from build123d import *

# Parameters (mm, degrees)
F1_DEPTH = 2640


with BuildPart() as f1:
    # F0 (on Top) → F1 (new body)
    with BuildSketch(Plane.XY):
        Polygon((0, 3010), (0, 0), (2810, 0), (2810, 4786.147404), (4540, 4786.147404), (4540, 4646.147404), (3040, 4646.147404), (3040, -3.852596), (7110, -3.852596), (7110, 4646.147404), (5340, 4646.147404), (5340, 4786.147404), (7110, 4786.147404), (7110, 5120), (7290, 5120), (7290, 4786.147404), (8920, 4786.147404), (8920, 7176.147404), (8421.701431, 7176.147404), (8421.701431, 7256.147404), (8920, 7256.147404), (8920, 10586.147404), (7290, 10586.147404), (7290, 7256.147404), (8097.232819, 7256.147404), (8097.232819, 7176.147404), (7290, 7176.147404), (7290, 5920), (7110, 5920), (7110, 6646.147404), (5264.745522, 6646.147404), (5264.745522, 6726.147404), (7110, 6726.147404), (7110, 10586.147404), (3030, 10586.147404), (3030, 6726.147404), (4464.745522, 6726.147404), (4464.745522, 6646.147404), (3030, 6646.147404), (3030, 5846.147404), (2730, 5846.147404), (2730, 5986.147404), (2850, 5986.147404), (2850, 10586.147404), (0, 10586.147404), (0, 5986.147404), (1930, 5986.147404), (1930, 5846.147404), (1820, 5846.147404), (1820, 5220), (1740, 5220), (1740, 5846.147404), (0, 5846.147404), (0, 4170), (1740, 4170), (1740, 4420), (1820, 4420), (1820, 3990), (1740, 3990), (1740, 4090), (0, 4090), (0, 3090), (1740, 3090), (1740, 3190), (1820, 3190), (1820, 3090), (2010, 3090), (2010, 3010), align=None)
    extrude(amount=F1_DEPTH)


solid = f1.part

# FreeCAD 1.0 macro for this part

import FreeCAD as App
import Part
import Sketcher

V = App.Vector


def add_polygon(sketch, points):
    """Adds a closed chain of lines whose ends are joined by coincident constraints."""
    first, n = sketch.GeometryCount, len(points)
    for a, b in zip(points, points[1:] + points[:1]):
        sketch.addGeometry(Part.LineSegment(App.Vector(*a, 0), App.Vector(*b, 0)), False)
    for i in range(n):
        sketch.addConstraint(Sketcher.Constraint("Coincident", first + i, 2, first + (i + 1) % n, 1))

doc = App.newDocument("Part")
body = doc.addObject("PartDesign::Body", "Body")

sketch1 = body.newObject("Sketcher::SketchObject", "Sketch")
sketch1.AttachmentSupport = (doc.getObject("XY_Plane"), [""])
sketch1.MapMode = "FlatFace"
add_polygon(sketch1, [(0, 3010), (0, 0), (2810, 0), (2810, 4786), (4540, 4786), (4540, 4646), (3040, 4646), (3040, -4), (7110, -4), (7110, 4646), (5340, 4646), (5340, 4786), (7110, 4786), (7110, 5120), (7290, 5120), (7290, 4786), (8920, 4786), (8920, 7176), (8422, 7176), (8422, 7256), (8920, 7256), (8920, 10586), (7290, 10586), (7290, 7256), (8097, 7256), (8097, 7176), (7290, 7176), (7290, 5920), (7110, 5920), (7110, 6646), (5265, 6646), (5265, 6726), (7110, 6726), (7110, 10586), (3030, 10586), (3030, 6726), (4465, 6726), (4465, 6646), (3030, 6646), (3030, 5846), (2730, 5846), (2730, 5986), (2850, 5986), (2850, 10586), (0, 10586), (0, 5986), (1930, 5986), (1930, 5846), (1820, 5846), (1820, 5220), (1740, 5220), (1740, 5846), (0, 5846), (0, 4170), (1740, 4170), (1740, 4420), (1820, 4420), (1820, 3990), (1740, 3990), (1740, 4090), (0, 4090), (0, 3090), (1740, 3090), (1740, 3190), (1820, 3190), (1820, 3090), (2010, 3090), (2010, 3010)])
sketch1.addConstraint(Sketcher.Constraint("Vertical", 0))
sketch1.addConstraint(Sketcher.Constraint("Horizontal", 1))
sketch1.addConstraint(Sketcher.Constraint("Vertical", 2))
sketch1.addConstraint(Sketcher.Constraint("Horizontal", 3))
sketch1.addConstraint(Sketcher.Constraint("Vertical", 4))
sketch1.addConstraint(Sketcher.Constraint("Horizontal", 5))
sketch1.addConstraint(Sketcher.Constraint("Vertical", 6))
sketch1.addConstraint(Sketcher.Constraint("Horizontal", 7))
sketch1.addConstraint(Sketcher.Constraint("Vertical", 8))
sketch1.addConstraint(Sketcher.Constraint("Horizontal", 9))
sketch1.addConstraint(Sketcher.Constraint("Vertical", 10))
sketch1.addConstraint(Sketcher.Constraint("Horizontal", 11))
sketch1.addConstraint(Sketcher.Constraint("Vertical", 12))
sketch1.addConstraint(Sketcher.Constraint("Horizontal", 13))
sketch1.addConstraint(Sketcher.Constraint("Vertical", 14))
sketch1.addConstraint(Sketcher.Constraint("Horizontal", 15))
sketch1.addConstraint(Sketcher.Constraint("Vertical", 16))
sketch1.addConstraint(Sketcher.Constraint("Horizontal", 17))
sketch1.addConstraint(Sketcher.Constraint("Vertical", 18))
sketch1.addConstraint(Sketcher.Constraint("Horizontal", 19))
sketch1.addConstraint(Sketcher.Constraint("Vertical", 20))
sketch1.addConstraint(Sketcher.Constraint("Horizontal", 21))
sketch1.addConstraint(Sketcher.Constraint("Vertical", 22))
sketch1.addConstraint(Sketcher.Constraint("Horizontal", 23))
sketch1.addConstraint(Sketcher.Constraint("Vertical", 24))
sketch1.addConstraint(Sketcher.Constraint("Horizontal", 25))
sketch1.addConstraint(Sketcher.Constraint("Vertical", 26))
sketch1.addConstraint(Sketcher.Constraint("Horizontal", 27))
sketch1.addConstraint(Sketcher.Constraint("Vertical", 28))
sketch1.addConstraint(Sketcher.Constraint("Horizontal", 29))
sketch1.addConstraint(Sketcher.Constraint("Vertical", 30))
sketch1.addConstraint(Sketcher.Constraint("Horizontal", 31))
sketch1.addConstraint(Sketcher.Constraint("Vertical", 32))
sketch1.addConstraint(Sketcher.Constraint("Horizontal", 33))
sketch1.addConstraint(Sketcher.Constraint("Vertical", 34))
sketch1.addConstraint(Sketcher.Constraint("Horizontal", 35))
sketch1.addConstraint(Sketcher.Constraint("Vertical", 36))
sketch1.addConstraint(Sketcher.Constraint("Horizontal", 37))
sketch1.addConstraint(Sketcher.Constraint("Vertical", 38))
sketch1.addConstraint(Sketcher.Constraint("Horizontal", 39))
sketch1.addConstraint(Sketcher.Constraint("Vertical", 40))
sketch1.addConstraint(Sketcher.Constraint("Horizontal", 41))
sketch1.addConstraint(Sketcher.Constraint("Vertical", 42))
sketch1.addConstraint(Sketcher.Constraint("Horizontal", 43))
sketch1.addConstraint(Sketcher.Constraint("Vertical", 44))
sketch1.addConstraint(Sketcher.Constraint("Horizontal", 45))
sketch1.addConstraint(Sketcher.Constraint("Vertical", 46))
sketch1.addConstraint(Sketcher.Constraint("Horizontal", 47))
sketch1.addConstraint(Sketcher.Constraint("Vertical", 48))
sketch1.addConstraint(Sketcher.Constraint("Horizontal", 49))
sketch1.addConstraint(Sketcher.Constraint("Vertical", 50))
sketch1.addConstraint(Sketcher.Constraint("Horizontal", 51))
sketch1.addConstraint(Sketcher.Constraint("Vertical", 52))
sketch1.addConstraint(Sketcher.Constraint("Horizontal", 53))
sketch1.addConstraint(Sketcher.Constraint("Vertical", 54))
sketch1.addConstraint(Sketcher.Constraint("Horizontal", 55))
sketch1.addConstraint(Sketcher.Constraint("Vertical", 56))
sketch1.addConstraint(Sketcher.Constraint("Horizontal", 57))
sketch1.addConstraint(Sketcher.Constraint("Vertical", 58))
sketch1.addConstraint(Sketcher.Constraint("Horizontal", 59))
sketch1.addConstraint(Sketcher.Constraint("Vertical", 60))
sketch1.addConstraint(Sketcher.Constraint("Horizontal", 61))
sketch1.addConstraint(Sketcher.Constraint("Vertical", 62))
sketch1.addConstraint(Sketcher.Constraint("Horizontal", 63))
sketch1.addConstraint(Sketcher.Constraint("Vertical", 64))
sketch1.addConstraint(Sketcher.Constraint("Horizontal", 65))
sketch1.addConstraint(Sketcher.Constraint("Vertical", 66))
sketch1.addConstraint(Sketcher.Constraint("Horizontal", 67))
sketch1.addConstraint(Sketcher.Constraint("Coincident", 0, 2, -1, 1))
sketch1.addConstraint(Sketcher.Constraint("PointOnObject", 43, 2, -2))
sketch1.addConstraint(Sketcher.Constraint("PointOnObject", 51, 2, -2))
sketch1.addConstraint(Sketcher.Constraint("PointOnObject", 59, 2, -2))
sketch1.addConstraint(Sketcher.Constraint("Horizontal", 5, 2, 8, 2))
sketch1.addConstraint(Sketcher.Constraint("Horizontal", 3, 2, 10, 2))
sketch1.addConstraint(Sketcher.Constraint("Horizontal", 11, 2, 14, 2))
sketch1.addConstraint(Sketcher.Constraint("Horizontal", 19, 2, 22, 2))
sketch1.addConstraint(Sketcher.Constraint("Horizontal", 17, 2, 24, 2))
sketch1.addConstraint(Sketcher.Constraint("Horizontal", 21, 2, 32, 2))
sketch1.addConstraint(Sketcher.Constraint("Horizontal", 31, 2, 34, 2))
sketch1.addConstraint(Sketcher.Constraint("Horizontal", 29, 2, 36, 2))
sketch1.addConstraint(Sketcher.Constraint("Horizontal", 33, 2, 42, 2))
sketch1.addConstraint(Sketcher.Constraint("Horizontal", 41, 2, 44, 2))
sketch1.addConstraint(Sketcher.Constraint("Horizontal", 39, 2, 46, 2))
sketch1.addConstraint(Sketcher.Constraint("Horizontal", 47, 2, 50, 2))
sketch1.addConstraint(Sketcher.Constraint("Horizontal", 61, 2, 64, 2))
sketch1.addConstraint(Sketcher.Constraint("Vertical", 8, 2, 11, 2))
sketch1.addConstraint(Sketcher.Constraint("Vertical", 16, 2, 19, 2))
sketch1.addConstraint(Sketcher.Constraint("Vertical", 14, 2, 21, 2))
sketch1.addConstraint(Sketcher.Constraint("Vertical", 22, 2, 25, 2))
sketch1.addConstraint(Sketcher.Constraint("Vertical", 12, 2, 27, 2))
sketch1.addConstraint(Sketcher.Constraint("Vertical", 28, 2, 31, 2))
sketch1.addConstraint(Sketcher.Constraint("Vertical", 34, 2, 37, 2))
sketch1.addConstraint(Sketcher.Constraint("Vertical", 50, 2, 53, 2))
sketch1.addConstraint(Sketcher.Constraint("Vertical", 48, 2, 55, 2))
sketch1.addConstraint(Sketcher.Constraint("Vertical", 54, 2, 57, 2))
sketch1.addConstraint(Sketcher.Constraint("Vertical", 58, 2, 61, 2))
sketch1.addConstraint(Sketcher.Constraint("Vertical", 56, 2, 63, 2))
sketch1.addConstraint(Sketcher.Constraint("Equal", 63, 18))
sketch1.addConstraint(Sketcher.Constraint("Equal", 24, 30))
sketch1.addConstraint(Sketcher.Constraint("Equal", 10, 40))
sketch1.addConstraint(Sketcher.Constraint("Equal", 58, 62))
sketch1.addConstraint(Sketcher.Constraint("Equal", 36, 66))
sketch1.addConstraint(Sketcher.Constraint("DistanceX", 1, 1, 1, 2, 2810.0))
sketch1.addConstraint(Sketcher.Constraint("DistanceX", 3, 1, 3, 2, 1730.0))
sketch1.addConstraint(Sketcher.Constraint("DistanceX", 5, 2, 5, 1, 1500.0))
sketch1.addConstraint(Sketcher.Constraint("DistanceX", 7, 1, 7, 2, 4070.0))
sketch1.addConstraint(Sketcher.Constraint("DistanceX", 9, 2, 9, 1, 1770.0))
sketch1.addConstraint(Sketcher.Constraint("DistanceX", 13, 1, 13, 2, 180.0))
sketch1.addConstraint(Sketcher.Constraint("DistanceX", 15, 1, 15, 2, 1630.0))
sketch1.addConstraint(Sketcher.Constraint("DistanceX", 33, 2, 33, 1, 4080.0))
sketch1.addConstraint(Sketcher.Constraint("DistanceX", 39, 2, 39, 1, 300.0))
sketch1.addConstraint(Sketcher.Constraint("DistanceX", 41, 1, 41, 2, 120.0))
sketch1.addConstraint(Sketcher.Constraint("DistanceX", 45, 1, 45, 2, 1930.0))
sketch1.addConstraint(Sketcher.Constraint("DistanceX", 47, 2, 47, 1, 110.0))
sketch1.addConstraint(Sketcher.Constraint("DistanceX", 49, 2, 49, 1, 80.0))
sketch1.addConstraint(Sketcher.Constraint("DistanceX", 65, 1, 65, 2, 190.0))
sketch1.addConstraint(Sketcher.Constraint("DistanceY", 0, 2, 0, 1, 3010.0))
sketch1.addConstraint(Sketcher.Constraint("DistanceY", 4, 2, 4, 1, 140.0))
sketch1.addConstraint(Sketcher.Constraint("DistanceY", 6, 2, 6, 1, 4650.0))
sketch1.addConstraint(Sketcher.Constraint("DistanceY", 16, 1, 16, 2, 2390.0))
sketch1.addConstraint(Sketcher.Constraint("DistanceY", 20, 1, 20, 2, 3330.0))
sketch1.addConstraint(Sketcher.Constraint("DistanceY", 32, 1, 32, 2, 3860.0))
sketch1.addConstraint(Sketcher.Constraint("DistanceY", 38, 2, 38, 1, 800.0))
sketch1.addConstraint(Sketcher.Constraint("DistanceY", 54, 1, 54, 2, 250.0))
sketch1.addConstraint(Sketcher.Constraint("DistanceY", 56, 2, 56, 1, 430.0))
sketch1.addConstraint(Sketcher.Constraint("DistanceY", 58, 1, 58, 2, 100.0))
sketch1.addConstraint(Sketcher.Constraint("DistanceY", 60, 2, 60, 1, 1000.0))
sketch1.addConstraint(Sketcher.Constraint("DistanceY", -1, 1, 12, 2, 5120.0))
sketch1.addConstraint(Sketcher.Constraint("DistanceY", -1, 1, 26, 2, 5920.0))
sketch1.addConstraint(Sketcher.Constraint("DistanceY", -1, 1, 48, 2, 5220.0))
sketch1.addConstraint(Sketcher.Constraint("DistanceX", 17, 2, 17, 1, 498.298569))
sketch1.addConstraint(Sketcher.Constraint("DistanceX", 23, 1, 23, 2, 807.232819))
sketch1.addConstraint(Sketcher.Constraint("DistanceX", 29, 2, 29, 1, 1845.254478))
sketch1.addConstraint(Sketcher.Constraint("DistanceX", 35, 1, 35, 2, 1434.745522))
sketch1.addConstraint(Sketcher.Constraint("DistanceY", 2, 1, 2, 2, 4786.147404))
pad1 = body.newObject("PartDesign::Pad", "Pad")
pad1.Profile = sketch1
pad1.Length = 2640

doc.recompute()
